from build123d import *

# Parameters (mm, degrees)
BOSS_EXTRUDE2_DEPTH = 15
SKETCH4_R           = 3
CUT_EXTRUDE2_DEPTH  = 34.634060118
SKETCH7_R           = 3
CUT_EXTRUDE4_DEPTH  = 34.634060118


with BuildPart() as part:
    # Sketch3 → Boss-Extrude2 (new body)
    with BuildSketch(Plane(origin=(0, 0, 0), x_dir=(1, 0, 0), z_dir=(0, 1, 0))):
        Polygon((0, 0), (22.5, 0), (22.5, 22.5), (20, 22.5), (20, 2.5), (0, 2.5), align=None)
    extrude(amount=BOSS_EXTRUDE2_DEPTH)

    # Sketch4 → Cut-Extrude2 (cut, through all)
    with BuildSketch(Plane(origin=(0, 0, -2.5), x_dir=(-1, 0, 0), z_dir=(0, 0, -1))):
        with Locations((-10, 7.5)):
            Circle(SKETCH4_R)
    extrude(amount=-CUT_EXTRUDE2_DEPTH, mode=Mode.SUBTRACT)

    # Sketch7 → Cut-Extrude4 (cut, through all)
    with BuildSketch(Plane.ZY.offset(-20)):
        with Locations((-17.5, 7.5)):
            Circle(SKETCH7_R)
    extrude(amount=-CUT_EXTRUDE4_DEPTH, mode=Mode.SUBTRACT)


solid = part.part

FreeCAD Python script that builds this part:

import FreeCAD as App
import Part
import Sketcher
from FreeCAD import Vector
Q = App.Units.Quantity

doc = App.newDocument("Part")
body = doc.addObject("PartDesign::Body", "Body")

# Sketch on XZ plane
sketch1 = body.newObject("Sketcher::SketchObject", "Sketch")
sketch1.AttachmentSupport = (doc.getObject("XZ_Plane"), [""])
sketch1.MapMode = "FlatFace"
sketch1.addGeometry(Part.LineSegment(Vector(0, 0, 0), Vector(22.5, 0, 0)), False)
sketch1.addGeometry(Part.LineSegment(Vector(22.5, 0, 0), Vector(22.5, -22.5, 0)), False)
sketch1.addGeometry(Part.LineSegment(Vector(22.5, -22.5, 0), Vector(20, -22.5, 0)), False)
sketch1.addGeometry(Part.LineSegment(Vector(20, -22.5, 0), Vector(20, -2.5, 0)), False)
sketch1.addGeometry(Part.LineSegment(Vector(20, -2.5, 0), Vector(0, -2.5, 0)), False)
sketch1.addGeometry(Part.LineSegment(Vector(0, -2.5, 0), Vector(0, 0, 0)), False)
sketch1.addConstraint(Sketcher.Constraint("Coincident", 0, 2, 1, 1))
sketch1.addConstraint(Sketcher.Constraint("Coincident", 1, 2, 2, 1))
sketch1.addConstraint(Sketcher.Constraint("Coincident", 2, 2, 3, 1))
sketch1.addConstraint(Sketcher.Constraint("Coincident", 3, 2, 4, 1))
sketch1.addConstraint(Sketcher.Constraint("Coincident", 4, 2, 5, 1))
sketch1.addConstraint(Sketcher.Constraint("Coincident", 5, 2, 0, 1))
sketch1.addConstraint(Sketcher.Constraint("Horizontal", 0))
sketch1.addConstraint(Sketcher.Constraint("Vertical", 1))
sketch1.addConstraint(Sketcher.Constraint("Horizontal", 2))
sketch1.addConstraint(Sketcher.Constraint("Vertical", 3))
sketch1.addConstraint(Sketcher.Constraint("Horizontal", 4))
sketch1.addConstraint(Sketcher.Constraint("Vertical", 5))
sketch1.addConstraint(Sketcher.Constraint("Coincident", 5, 2, -1, 1))
sketch1.addConstraint(Sketcher.Constraint("Equal", 0, 1))
sketch1.addConstraint(Sketcher.Constraint("Equal", 4, 3))
sketch1.addConstraint(Sketcher.Constraint("DistanceX", 4, 2, 4, 1, Q("20 mm")))
sketch1.addConstraint(Sketcher.Constraint("DistanceX", 0, 1, 0, 2, Q("22.5 mm")))
pad1 = body.newObject("PartDesign::Pad", "Pad")
pad1.Profile = sketch1
pad1.Length = 15
pad1.Reversed = True

# Sketch on XY plane
sketch2 = body.newObject("Sketcher::SketchObject", "Sketch001")
sketch2.AttachmentSupport = (doc.getObject("XY_Plane"), [""])
sketch2.MapMode = "FlatFace"
sketch2.AttachmentOffset = App.Placement(Vector(0, 0, -2.5), App.Rotation())
sketch2.addGeometry(Part.Circle(Vector(10, 7.5, 0), Vector(0, 0, 1), 3), False)
sketch2.addConstraint(Sketcher.Constraint("Diameter", 0, Q("6 mm")))
sketch2.addConstraint(Sketcher.Constraint("DistanceX", -1, 1, 0, 3, Q("10 mm")))
sketch2.addConstraint(Sketcher.Constraint("DistanceY", -1, 1, 0, 3, Q("7.5 mm")))
pocket1 = body.newObject("PartDesign::Pocket", "Pocket")
pocket1.Profile = sketch2
pocket1.Type = "ThroughAll"
pocket1.Reversed = True

# Sketch on YZ plane
sketch3 = body.newObject("Sketcher::SketchObject", "Sketch002")
sketch3.AttachmentSupport = (doc.getObject("YZ_Plane"), [""])
sketch3.MapMode = "FlatFace"
sketch3.AttachmentOffset = App.Placement(Vector(0, 0, 20), App.Rotation())
sketch3.addGeometry(Part.Circle(Vector(7.5, -17.5, 0), Vector(0, 0, 1), 3), False)
sketch3.addConstraint(Sketcher.Constraint("Diameter", 0, Q("6 mm")))
sketch3.addConstraint(Sketcher.Constraint("DistanceX", -1, 1, 0, 3, Q("7.5 mm")))
sketch3.addConstraint(Sketcher.Constraint("DistanceY", 0, 3, -1, 1, Q("17.5 mm")))
pocket2 = body.newObject("PartDesign::Pocket", "Pocket001")
pocket2.Profile = sketch3
pocket2.Type = "ThroughAll"
pocket2.Reversed = True

doc.recompute()
